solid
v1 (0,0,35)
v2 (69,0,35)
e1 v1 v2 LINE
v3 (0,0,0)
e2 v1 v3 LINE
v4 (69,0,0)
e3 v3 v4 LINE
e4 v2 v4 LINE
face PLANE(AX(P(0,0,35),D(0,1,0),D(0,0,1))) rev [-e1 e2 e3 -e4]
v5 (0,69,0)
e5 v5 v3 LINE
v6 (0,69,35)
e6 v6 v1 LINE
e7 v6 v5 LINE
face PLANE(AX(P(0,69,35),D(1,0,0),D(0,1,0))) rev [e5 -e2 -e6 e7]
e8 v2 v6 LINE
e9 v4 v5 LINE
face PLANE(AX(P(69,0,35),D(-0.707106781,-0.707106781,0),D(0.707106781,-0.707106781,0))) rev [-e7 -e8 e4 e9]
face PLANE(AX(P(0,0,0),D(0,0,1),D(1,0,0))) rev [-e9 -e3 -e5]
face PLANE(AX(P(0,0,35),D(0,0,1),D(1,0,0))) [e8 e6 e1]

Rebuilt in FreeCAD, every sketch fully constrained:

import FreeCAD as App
import Part
import Sketcher
Q = App.Units.Quantity

doc = App.newDocument("Part")
body = doc.addObject("PartDesign::Body", "Body")

sketch1 = doc.addObject("Sketcher::SketchObject", "Sketch")
body.addObject(sketch1)
sketch1.AttachmentSupport = (doc.XY_Plane, [""])
sketch1.MapMode = "FlatFace"
sketch1.addGeometry(Part.LineSegment(App.Vector(0, 0, 0), App.Vector(69, 0, 0)), False)
sketch1.addGeometry(Part.LineSegment(App.Vector(69, 0, 0), App.Vector(0, 69, 0)), False)
sketch1.addGeometry(Part.LineSegment(App.Vector(0, 69, 0), App.Vector(0, 0, 0)), False)
sketch1.addConstraint(Sketcher.Constraint("Coincident", 0, 2, 1, 1))
sketch1.addConstraint(Sketcher.Constraint("Coincident", 1, 2, 2, 1))
sketch1.addConstraint(Sketcher.Constraint("Coincident", 2, 2, 0, 1))
sketch1.addConstraint(Sketcher.Constraint("Horizontal", 0))
sketch1.addConstraint(Sketcher.Constraint("Vertical", 2))
sketch1.addConstraint(Sketcher.Constraint("Coincident", 2, 2, -1, 1))
sketch1.addConstraint(Sketcher.Constraint("Equal", 0, 2))
sketch1.addConstraint(Sketcher.Constraint("DistanceX", 0, 1, 0, 2, Q("69 mm")))
pad1 = doc.addObject("PartDesign::Pad", "Pad")
body.addObject(pad1)
pad1.Profile = sketch1
pad1.Length = 35

doc.recompute()
